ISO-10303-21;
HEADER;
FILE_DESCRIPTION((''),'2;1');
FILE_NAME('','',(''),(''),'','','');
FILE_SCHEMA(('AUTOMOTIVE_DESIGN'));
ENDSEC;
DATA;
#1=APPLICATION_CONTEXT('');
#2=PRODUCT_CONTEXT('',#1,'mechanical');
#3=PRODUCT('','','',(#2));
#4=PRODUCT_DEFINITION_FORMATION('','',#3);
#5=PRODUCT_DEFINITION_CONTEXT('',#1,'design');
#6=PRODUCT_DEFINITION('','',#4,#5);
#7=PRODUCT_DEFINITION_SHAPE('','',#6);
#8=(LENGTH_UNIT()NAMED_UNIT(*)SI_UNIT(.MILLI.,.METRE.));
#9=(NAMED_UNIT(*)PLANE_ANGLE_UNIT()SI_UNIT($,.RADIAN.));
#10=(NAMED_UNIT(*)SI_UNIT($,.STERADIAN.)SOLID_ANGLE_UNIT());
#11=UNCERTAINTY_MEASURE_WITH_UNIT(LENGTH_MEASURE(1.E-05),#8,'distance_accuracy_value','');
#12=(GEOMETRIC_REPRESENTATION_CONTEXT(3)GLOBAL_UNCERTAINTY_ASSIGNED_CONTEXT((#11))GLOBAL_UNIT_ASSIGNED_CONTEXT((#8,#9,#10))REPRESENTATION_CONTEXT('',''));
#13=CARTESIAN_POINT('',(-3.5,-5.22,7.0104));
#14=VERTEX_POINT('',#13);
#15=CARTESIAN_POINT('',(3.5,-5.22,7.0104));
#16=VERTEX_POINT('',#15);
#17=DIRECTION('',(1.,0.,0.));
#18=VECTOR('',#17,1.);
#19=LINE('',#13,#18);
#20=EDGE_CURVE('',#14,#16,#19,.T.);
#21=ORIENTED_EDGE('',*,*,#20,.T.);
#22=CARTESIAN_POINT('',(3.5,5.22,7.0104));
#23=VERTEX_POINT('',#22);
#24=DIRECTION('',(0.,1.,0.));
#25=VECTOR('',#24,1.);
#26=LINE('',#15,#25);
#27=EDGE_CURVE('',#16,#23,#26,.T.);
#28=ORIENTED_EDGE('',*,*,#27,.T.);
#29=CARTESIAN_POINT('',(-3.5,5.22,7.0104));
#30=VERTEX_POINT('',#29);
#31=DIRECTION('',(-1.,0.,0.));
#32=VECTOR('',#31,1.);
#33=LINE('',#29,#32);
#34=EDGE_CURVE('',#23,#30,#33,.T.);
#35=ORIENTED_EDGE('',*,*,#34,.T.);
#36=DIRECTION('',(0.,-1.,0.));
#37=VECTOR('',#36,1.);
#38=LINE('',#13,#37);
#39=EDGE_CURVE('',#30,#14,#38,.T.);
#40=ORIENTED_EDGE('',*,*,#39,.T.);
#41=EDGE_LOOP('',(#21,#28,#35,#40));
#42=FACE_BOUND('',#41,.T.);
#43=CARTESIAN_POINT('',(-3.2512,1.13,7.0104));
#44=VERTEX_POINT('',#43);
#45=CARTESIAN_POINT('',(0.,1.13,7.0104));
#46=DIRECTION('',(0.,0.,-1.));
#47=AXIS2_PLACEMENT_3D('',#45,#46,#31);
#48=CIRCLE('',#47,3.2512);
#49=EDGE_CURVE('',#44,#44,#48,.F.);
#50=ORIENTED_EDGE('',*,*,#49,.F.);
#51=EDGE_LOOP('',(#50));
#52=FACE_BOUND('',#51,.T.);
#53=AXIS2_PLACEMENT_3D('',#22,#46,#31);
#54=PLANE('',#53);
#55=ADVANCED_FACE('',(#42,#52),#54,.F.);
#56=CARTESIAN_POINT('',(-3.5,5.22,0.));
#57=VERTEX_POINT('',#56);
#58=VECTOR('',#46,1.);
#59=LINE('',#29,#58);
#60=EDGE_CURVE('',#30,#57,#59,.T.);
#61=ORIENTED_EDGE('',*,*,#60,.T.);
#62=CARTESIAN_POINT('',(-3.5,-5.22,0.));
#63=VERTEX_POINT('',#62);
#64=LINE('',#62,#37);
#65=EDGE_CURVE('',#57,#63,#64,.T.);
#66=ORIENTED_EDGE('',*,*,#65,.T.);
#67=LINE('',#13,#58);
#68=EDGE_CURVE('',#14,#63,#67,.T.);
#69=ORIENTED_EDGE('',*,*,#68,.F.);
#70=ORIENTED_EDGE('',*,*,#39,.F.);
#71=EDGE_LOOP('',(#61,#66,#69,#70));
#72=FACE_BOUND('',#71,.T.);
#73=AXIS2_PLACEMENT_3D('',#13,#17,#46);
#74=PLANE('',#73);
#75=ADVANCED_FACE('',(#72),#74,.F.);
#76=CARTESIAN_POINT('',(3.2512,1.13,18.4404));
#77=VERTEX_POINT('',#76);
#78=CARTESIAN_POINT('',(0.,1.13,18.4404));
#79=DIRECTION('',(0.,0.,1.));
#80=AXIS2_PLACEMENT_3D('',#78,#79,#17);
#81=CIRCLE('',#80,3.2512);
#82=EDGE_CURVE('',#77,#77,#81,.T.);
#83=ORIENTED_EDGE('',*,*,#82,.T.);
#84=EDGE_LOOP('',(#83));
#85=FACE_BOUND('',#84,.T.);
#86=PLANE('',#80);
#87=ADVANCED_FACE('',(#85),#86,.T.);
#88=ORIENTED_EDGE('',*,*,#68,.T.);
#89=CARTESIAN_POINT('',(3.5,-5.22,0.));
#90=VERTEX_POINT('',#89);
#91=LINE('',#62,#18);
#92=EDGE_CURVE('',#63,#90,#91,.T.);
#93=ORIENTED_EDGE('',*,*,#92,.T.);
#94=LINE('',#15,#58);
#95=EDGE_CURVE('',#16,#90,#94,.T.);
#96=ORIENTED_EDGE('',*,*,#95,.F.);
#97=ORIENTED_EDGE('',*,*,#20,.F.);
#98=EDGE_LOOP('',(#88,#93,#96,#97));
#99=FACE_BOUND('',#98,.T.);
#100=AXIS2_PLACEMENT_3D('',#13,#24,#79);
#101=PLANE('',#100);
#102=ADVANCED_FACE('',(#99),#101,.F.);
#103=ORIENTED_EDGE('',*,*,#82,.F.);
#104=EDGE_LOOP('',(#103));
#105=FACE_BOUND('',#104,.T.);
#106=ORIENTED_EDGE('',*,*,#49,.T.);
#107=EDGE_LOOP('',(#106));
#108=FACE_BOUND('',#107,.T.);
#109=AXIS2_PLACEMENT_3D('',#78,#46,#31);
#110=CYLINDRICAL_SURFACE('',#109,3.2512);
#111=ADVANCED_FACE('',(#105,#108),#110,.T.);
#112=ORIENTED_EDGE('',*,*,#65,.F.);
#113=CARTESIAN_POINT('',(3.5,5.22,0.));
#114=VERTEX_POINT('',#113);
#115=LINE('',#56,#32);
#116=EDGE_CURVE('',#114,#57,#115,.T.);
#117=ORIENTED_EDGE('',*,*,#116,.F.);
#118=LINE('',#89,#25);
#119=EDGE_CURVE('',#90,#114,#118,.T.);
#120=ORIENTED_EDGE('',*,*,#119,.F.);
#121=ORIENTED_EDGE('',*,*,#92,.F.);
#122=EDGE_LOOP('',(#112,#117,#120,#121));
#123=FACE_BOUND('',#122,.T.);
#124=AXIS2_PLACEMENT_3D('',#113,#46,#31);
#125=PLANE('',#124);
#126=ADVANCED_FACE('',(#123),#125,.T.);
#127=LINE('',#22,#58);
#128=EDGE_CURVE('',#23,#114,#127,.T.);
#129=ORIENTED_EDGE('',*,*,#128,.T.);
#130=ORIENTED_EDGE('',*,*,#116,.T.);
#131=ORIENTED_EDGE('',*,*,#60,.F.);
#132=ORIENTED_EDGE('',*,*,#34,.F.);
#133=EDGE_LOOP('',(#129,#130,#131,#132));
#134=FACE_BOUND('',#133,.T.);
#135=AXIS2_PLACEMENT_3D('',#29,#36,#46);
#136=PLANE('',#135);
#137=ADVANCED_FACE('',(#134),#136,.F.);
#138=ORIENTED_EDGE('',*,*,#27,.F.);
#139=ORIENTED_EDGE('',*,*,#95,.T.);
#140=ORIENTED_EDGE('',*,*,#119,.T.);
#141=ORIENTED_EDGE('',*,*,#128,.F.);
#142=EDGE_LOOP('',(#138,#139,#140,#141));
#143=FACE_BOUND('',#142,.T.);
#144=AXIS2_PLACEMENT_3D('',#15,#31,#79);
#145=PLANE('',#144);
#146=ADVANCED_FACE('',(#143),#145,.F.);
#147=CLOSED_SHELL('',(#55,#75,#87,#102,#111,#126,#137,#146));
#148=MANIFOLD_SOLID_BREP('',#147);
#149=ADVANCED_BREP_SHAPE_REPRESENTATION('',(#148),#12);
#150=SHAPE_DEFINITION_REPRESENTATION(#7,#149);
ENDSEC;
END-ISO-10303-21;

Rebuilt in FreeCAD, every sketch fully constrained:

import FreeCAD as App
import Part
import Sketcher
from FreeCAD import Vector
Q = App.Units.Quantity

doc = App.newDocument("Part")
params = doc.addObject("Spreadsheet::Sheet", "Params")
for row, (alias, value) in enumerate([
    ("pad1_length", "0.276 in"),
    ("sketch2_diameter", "0.256 in"),
    ("pad2_length", "0.45 in"),
], start=1):
    params.set(f"A{row}", alias)
    params.set(f"B{row}", "=" + value)
    params.setAlias(f"B{row}", alias)

body = doc.addObject("PartDesign::Body", "Body")

sketch1 = body.newObject("Sketcher::SketchObject", "Sketch")
sketch1.AttachmentSupport = (doc.getObject("XY_Plane"), [""])
sketch1.MapMode = "FlatFace"
sketch1.addGeometry(Part.LineSegment(Vector(-4, 5, 0), Vector(-4, -5, 0)), False)
sketch1.addGeometry(Part.LineSegment(Vector(-4, -5, 0), Vector(4, -5, 0)), False)
sketch1.addGeometry(Part.LineSegment(Vector(4, -5, 0), Vector(4, 5, 0)), False)
sketch1.addGeometry(Part.LineSegment(Vector(4, 5, 0), Vector(-4, 5, 0)), False)
sketch1.addConstraint(Sketcher.Constraint("Coincident", 0, 2, 1, 1))
sketch1.addConstraint(Sketcher.Constraint("Coincident", 1, 2, 2, 1))
sketch1.addConstraint(Sketcher.Constraint("Coincident", 2, 2, 3, 1))
sketch1.addConstraint(Sketcher.Constraint("Coincident", 3, 2, 0, 1))
sketch1.addConstraint(Sketcher.Constraint("Vertical", 0))
sketch1.addConstraint(Sketcher.Constraint("Horizontal", 1))
sketch1.addConstraint(Sketcher.Constraint("Vertical", 2))
sketch1.addConstraint(Sketcher.Constraint("Horizontal", 3))
sketch1.addConstraint(Sketcher.Constraint("Symmetric", 0, 2, 2, 2, -1, 1))
sketch1.addConstraint(Sketcher.Constraint("DistanceX", 1, 1, 1, 2, Q("7 mm")))
sketch1.addConstraint(Sketcher.Constraint("DistanceY", 0, 2, 0, 1, Q("10.44 mm")))
pad1 = body.newObject("PartDesign::Pad", "Pad")
pad1.Profile = sketch1
pad1.setExpression("Length", "Params.pad1_length")

sketch2 = body.newObject("Sketcher::SketchObject", "Sketch001")
sketch2.AttachmentSupport = (doc.getObject("XY_Plane"), [""])
sketch2.MapMode = "FlatFace"
sketch2.AttachmentOffset = App.Placement(Vector(0, 0, 0.276 * 25.4), App.Rotation())
sketch2.addGeometry(Part.Circle(Vector(0, 1.1, 0), Vector(0, 0, 1), 3.3), False)
sketch2.addConstraint(Sketcher.Constraint("PointOnObject", 0, 3, -2))
sketch2.addConstraint(Sketcher.Constraint("Diameter", 0, Q("0.256 in")))
sketch2.addConstraint(Sketcher.Constraint("DistanceY", -1, 1, 0, 3, Q("1.13 mm")))
sketch2.setExpression("Constraints[1]", "Params.sketch2_diameter")
pad2 = body.newObject("PartDesign::Pad", "Pad001")
pad2.Profile = sketch2
pad2.setExpression("Length", "Params.pad2_length")

doc.recompute()
